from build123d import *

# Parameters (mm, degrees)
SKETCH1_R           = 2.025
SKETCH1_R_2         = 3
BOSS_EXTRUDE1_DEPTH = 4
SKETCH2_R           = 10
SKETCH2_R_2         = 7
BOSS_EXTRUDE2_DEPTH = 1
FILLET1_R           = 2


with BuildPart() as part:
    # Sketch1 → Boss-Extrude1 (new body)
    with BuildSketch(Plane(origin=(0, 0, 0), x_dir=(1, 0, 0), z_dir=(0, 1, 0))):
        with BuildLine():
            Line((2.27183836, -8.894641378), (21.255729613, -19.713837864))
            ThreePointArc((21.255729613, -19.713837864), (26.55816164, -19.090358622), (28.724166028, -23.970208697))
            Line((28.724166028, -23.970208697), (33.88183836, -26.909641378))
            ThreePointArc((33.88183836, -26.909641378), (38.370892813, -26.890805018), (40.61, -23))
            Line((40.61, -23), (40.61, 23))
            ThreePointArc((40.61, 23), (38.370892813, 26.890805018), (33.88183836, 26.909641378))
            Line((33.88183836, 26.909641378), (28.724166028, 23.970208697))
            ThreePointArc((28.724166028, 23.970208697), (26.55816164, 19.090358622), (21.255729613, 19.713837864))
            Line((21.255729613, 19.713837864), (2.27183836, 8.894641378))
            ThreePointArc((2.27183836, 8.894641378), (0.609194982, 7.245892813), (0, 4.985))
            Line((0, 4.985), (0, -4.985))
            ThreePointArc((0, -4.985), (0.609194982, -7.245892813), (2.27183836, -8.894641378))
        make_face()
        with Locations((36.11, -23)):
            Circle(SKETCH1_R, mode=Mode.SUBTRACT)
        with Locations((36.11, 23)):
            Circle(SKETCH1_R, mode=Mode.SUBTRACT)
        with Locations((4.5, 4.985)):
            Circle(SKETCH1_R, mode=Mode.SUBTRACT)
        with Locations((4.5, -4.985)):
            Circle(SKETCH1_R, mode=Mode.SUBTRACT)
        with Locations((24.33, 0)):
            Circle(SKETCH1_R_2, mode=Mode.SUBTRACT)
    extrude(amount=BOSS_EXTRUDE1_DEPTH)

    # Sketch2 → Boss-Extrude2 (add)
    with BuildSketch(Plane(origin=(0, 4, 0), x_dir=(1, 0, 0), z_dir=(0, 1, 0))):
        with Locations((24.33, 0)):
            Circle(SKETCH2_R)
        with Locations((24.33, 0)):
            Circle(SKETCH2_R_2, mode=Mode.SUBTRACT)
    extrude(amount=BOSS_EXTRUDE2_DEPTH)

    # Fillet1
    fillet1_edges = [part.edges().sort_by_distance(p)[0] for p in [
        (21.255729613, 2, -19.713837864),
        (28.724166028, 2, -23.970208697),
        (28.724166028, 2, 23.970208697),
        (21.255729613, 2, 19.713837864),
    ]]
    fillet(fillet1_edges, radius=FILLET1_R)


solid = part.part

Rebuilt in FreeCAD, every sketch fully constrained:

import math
import FreeCAD as App
import Part
import Sketcher
from FreeCAD import Vector


def edges_at(feature, points):
    """Names of the edges that pass closest to the given points."""
    edges = feature.Shape.Edges
    near = lambda p: min(range(len(edges)), key=lambda i: edges[i].distToShape(Part.Vertex(*p))[0])
    return sorted({f"Edge{near(p) + 1}" for p in points})

doc = App.newDocument("Part")
params = doc.addObject("Spreadsheet::Sheet", "Params")
for row, (alias, value) in enumerate([
    ("sketch1_diameter", "6 mm"),
    ("sketch1_radius", "4.5 mm"),
    ("sketch1_diameter2", "4.05 mm"),
    ("sketch1_height", "46 mm"),
    ("sketch1_height2", "9.97 mm"),
    ("pad1_length", "4 mm"),
    ("sketch2_diameter", "20 mm"),
    ("sketch2_diameter2", "14 mm"),
    ("pad2_length", "1 mm"),
    ("fillet_radius", "2 mm"),
], start=1):
    params.set(f"A{row}", alias)
    params.set(f"B{row}", "=" + value)
    params.setAlias(f"B{row}", alias)

body = doc.addObject("PartDesign::Body", "Body")

sketch1 = body.newObject("Sketcher::SketchObject", "Sketch")
sketch1.AttachmentSupport = (doc.getObject("XZ_Plane"), [""])
sketch1.MapMode = "FlatFace"
sketch1.addGeometry([
    Part.LineSegment(Vector(2.3, 8.9, 0), Vector(21.3, 19.7, 0)),
    Part.ArcOfCircle(Part.Circle(Vector(24.3, 23, 0), Vector(0, 0, 1), 4.5), math.radians(-133), math.radians(12)),
    Part.LineSegment(Vector(28.7, 24, 0), Vector(33.9, 26.9, 0)),
    Part.ArcOfCircle(Part.Circle(Vector(36.1, 23, 0), Vector(0, 0, 1), 4.5), math.radians(0), math.radians(120)),
    Part.LineSegment(Vector(40.6, 23, 0), Vector(40.6, -23, 0)),
    Part.ArcOfCircle(Part.Circle(Vector(36.1, -23, 0), Vector(0, 0, 1), 4.5), math.radians(-120), math.radians(0)),
    Part.LineSegment(Vector(33.9, -26.9, 0), Vector(28.7, -24, 0)),
    Part.ArcOfCircle(Part.Circle(Vector(24.3, -23, 0), Vector(0, 0, 1), 4.5), math.radians(-12), math.radians(133)),
    Part.LineSegment(Vector(21.3, -19.7, 0), Vector(2.3, -8.9, 0)),
    Part.ArcOfCircle(Part.Circle(Vector(4.5, -5, 0), Vector(0, 0, 1), 4.5), math.radians(180), math.radians(240)),
    Part.LineSegment(Vector(0, -5, 0), Vector(0, 5, 0)),
    Part.ArcOfCircle(Part.Circle(Vector(4.5, 5, 0), Vector(0, 0, 1), 4.5), math.radians(120), math.radians(180)),
    Part.Circle(Vector(4.5, 5, 0), Vector(0, 0, 1), 2),
    Part.Circle(Vector(36.1, 23, 0), Vector(0, 0, 1), 2),
    Part.Circle(Vector(24.3, 0, 0), Vector(0, 0, 1), 3),
    Part.Circle(Vector(4.5, -5, 0), Vector(0, 0, 1), 2),
    Part.Circle(Vector(36.1, -23, 0), Vector(0, 0, 1), 2),
], False)
sketch1.addConstraint([
    Sketcher.Constraint("Coincident", 0, 2, 1, 1),
    Sketcher.Constraint("Coincident", 1, 2, 2, 1),
    Sketcher.Constraint("Tangent", 2, 2, 3, 2),
    Sketcher.Constraint("Tangent", 3, 1, 4, 1),
    Sketcher.Constraint("Tangent", 4, 2, 5, 2),
    Sketcher.Constraint("Tangent", 5, 1, 6, 1),
    Sketcher.Constraint("Coincident", 6, 2, 7, 1),
    Sketcher.Constraint("Coincident", 7, 2, 8, 1),
    Sketcher.Constraint("Tangent", 8, 2, 9, 2),
    Sketcher.Constraint("Tangent", 9, 1, 10, 1),
    Sketcher.Constraint("Tangent", 10, 2, 11, 2),
    Sketcher.Constraint("Tangent", 11, 1, 0, 1),
    Sketcher.Constraint("Vertical", 4),
    Sketcher.Constraint("Vertical", 10),
    Sketcher.Constraint("Coincident", 12, 3, 11, 3),
    Sketcher.Constraint("Coincident", 13, 3, 3, 3),
    Sketcher.Constraint("Coincident", 15, 3, 9, 3),
    Sketcher.Constraint("Coincident", 16, 3, 5, 3),
    Sketcher.Constraint("Equal", 1, 3),
    Sketcher.Constraint("Equal", 3, 5),
    Sketcher.Constraint("Equal", 5, 7),
    Sketcher.Constraint("Equal", 7, 9),
    Sketcher.Constraint("Equal", 9, 11),
    Sketcher.Constraint("Equal", 12, 13),
    Sketcher.Constraint("Equal", 13, 15),
    Sketcher.Constraint("Equal", 15, 16),
    Sketcher.Constraint("Symmetric", 9, 1, 10, 2, -1, 1),
    Sketcher.Constraint("Symmetric", 1, 3, 7, 3, -1),
    Sketcher.Constraint("Symmetric", 2, 2, 5, 1, -1),
    Sketcher.Constraint("PointOnObject", 14, 3, -1),
    Sketcher.Constraint("Parallel", 0, 2),
    Sketcher.Constraint("Parallel", 6, 8),
    Sketcher.Constraint("Horizontal", 1, 3, 3, 3),
    Sketcher.Constraint("Vertical", 7, 3, 14, 3),
    Sketcher.Constraint("Diameter", 14, 6.0),
    Sketcher.Constraint("Radius", 1, 4.5),
    Sketcher.Constraint("Diameter", 12, 4.05),
    Sketcher.Constraint("DistanceY", 4, 2, 4, 1, 46.0),
    Sketcher.Constraint("DistanceY", 10, 1, 10, 2, 9.97),
    Sketcher.Constraint("DistanceX", -1, 1, 1, 3, 24.33),
    Sketcher.Constraint("DistanceX", -1, 1, 3, 3, 36.11),
    Sketcher.Constraint("DistanceX", -1, 1, 0, 2, 21.25573),
])
sketch1.setExpression("Constraints[34]", "Params.sketch1_diameter")
sketch1.setExpression("Constraints[35]", "Params.sketch1_radius")
sketch1.setExpression("Constraints[36]", "Params.sketch1_diameter2")
sketch1.setExpression("Constraints[37]", "Params.sketch1_height")
sketch1.setExpression("Constraints[38]", "Params.sketch1_height2")
pad1 = body.newObject("PartDesign::Pad", "Pad")
pad1.Profile = sketch1
pad1.setExpression("Length", "Params.pad1_length")
pad1.Reversed = True

sketch2 = body.newObject("Sketcher::SketchObject", "Sketch001")
sketch2.AttachmentSupport = (doc.getObject("XZ_Plane"), [""])
sketch2.MapMode = "FlatFace"
sketch2.AttachmentOffset = App.Placement(Vector(0, 0, -4), App.Rotation())
sketch2.addGeometry([
    Part.Circle(Vector(24, 0, 0), Vector(0, 0, 1), 10),
    Part.Circle(Vector(24, 0, 0), Vector(0, 0, 1), 7),
], False)
sketch2.addConstraint([
    Sketcher.Constraint("Coincident", 1, 3, 0, 3),
    Sketcher.Constraint("PointOnObject", 0, 3, -1),
    Sketcher.Constraint("Diameter", 0, 20.0),
    Sketcher.Constraint("Diameter", 1, 14.0),
    Sketcher.Constraint("DistanceX", -1, 1, 0, 3, 24.33),
])
sketch2.setExpression("Constraints[2]", "Params.sketch2_diameter")
sketch2.setExpression("Constraints[3]", "Params.sketch2_diameter2")
pad2 = body.newObject("PartDesign::Pad", "Pad001")
pad2.Profile = sketch2
pad2.setExpression("Length", "Params.pad2_length")
pad2.Reversed = True
doc.recompute()

fillet = body.newObject("PartDesign::Fillet", "Fillet")
fillet.Base = (pad2, edges_at(pad2, [
    (21.256, 2, -19.714),
    (28.724, 2, -23.97),
    (28.724, 2, 23.97),
    (21.256, 2, 19.714),
]))
fillet.setExpression("Radius", "Params.fillet_radius")

doc.recompute()
